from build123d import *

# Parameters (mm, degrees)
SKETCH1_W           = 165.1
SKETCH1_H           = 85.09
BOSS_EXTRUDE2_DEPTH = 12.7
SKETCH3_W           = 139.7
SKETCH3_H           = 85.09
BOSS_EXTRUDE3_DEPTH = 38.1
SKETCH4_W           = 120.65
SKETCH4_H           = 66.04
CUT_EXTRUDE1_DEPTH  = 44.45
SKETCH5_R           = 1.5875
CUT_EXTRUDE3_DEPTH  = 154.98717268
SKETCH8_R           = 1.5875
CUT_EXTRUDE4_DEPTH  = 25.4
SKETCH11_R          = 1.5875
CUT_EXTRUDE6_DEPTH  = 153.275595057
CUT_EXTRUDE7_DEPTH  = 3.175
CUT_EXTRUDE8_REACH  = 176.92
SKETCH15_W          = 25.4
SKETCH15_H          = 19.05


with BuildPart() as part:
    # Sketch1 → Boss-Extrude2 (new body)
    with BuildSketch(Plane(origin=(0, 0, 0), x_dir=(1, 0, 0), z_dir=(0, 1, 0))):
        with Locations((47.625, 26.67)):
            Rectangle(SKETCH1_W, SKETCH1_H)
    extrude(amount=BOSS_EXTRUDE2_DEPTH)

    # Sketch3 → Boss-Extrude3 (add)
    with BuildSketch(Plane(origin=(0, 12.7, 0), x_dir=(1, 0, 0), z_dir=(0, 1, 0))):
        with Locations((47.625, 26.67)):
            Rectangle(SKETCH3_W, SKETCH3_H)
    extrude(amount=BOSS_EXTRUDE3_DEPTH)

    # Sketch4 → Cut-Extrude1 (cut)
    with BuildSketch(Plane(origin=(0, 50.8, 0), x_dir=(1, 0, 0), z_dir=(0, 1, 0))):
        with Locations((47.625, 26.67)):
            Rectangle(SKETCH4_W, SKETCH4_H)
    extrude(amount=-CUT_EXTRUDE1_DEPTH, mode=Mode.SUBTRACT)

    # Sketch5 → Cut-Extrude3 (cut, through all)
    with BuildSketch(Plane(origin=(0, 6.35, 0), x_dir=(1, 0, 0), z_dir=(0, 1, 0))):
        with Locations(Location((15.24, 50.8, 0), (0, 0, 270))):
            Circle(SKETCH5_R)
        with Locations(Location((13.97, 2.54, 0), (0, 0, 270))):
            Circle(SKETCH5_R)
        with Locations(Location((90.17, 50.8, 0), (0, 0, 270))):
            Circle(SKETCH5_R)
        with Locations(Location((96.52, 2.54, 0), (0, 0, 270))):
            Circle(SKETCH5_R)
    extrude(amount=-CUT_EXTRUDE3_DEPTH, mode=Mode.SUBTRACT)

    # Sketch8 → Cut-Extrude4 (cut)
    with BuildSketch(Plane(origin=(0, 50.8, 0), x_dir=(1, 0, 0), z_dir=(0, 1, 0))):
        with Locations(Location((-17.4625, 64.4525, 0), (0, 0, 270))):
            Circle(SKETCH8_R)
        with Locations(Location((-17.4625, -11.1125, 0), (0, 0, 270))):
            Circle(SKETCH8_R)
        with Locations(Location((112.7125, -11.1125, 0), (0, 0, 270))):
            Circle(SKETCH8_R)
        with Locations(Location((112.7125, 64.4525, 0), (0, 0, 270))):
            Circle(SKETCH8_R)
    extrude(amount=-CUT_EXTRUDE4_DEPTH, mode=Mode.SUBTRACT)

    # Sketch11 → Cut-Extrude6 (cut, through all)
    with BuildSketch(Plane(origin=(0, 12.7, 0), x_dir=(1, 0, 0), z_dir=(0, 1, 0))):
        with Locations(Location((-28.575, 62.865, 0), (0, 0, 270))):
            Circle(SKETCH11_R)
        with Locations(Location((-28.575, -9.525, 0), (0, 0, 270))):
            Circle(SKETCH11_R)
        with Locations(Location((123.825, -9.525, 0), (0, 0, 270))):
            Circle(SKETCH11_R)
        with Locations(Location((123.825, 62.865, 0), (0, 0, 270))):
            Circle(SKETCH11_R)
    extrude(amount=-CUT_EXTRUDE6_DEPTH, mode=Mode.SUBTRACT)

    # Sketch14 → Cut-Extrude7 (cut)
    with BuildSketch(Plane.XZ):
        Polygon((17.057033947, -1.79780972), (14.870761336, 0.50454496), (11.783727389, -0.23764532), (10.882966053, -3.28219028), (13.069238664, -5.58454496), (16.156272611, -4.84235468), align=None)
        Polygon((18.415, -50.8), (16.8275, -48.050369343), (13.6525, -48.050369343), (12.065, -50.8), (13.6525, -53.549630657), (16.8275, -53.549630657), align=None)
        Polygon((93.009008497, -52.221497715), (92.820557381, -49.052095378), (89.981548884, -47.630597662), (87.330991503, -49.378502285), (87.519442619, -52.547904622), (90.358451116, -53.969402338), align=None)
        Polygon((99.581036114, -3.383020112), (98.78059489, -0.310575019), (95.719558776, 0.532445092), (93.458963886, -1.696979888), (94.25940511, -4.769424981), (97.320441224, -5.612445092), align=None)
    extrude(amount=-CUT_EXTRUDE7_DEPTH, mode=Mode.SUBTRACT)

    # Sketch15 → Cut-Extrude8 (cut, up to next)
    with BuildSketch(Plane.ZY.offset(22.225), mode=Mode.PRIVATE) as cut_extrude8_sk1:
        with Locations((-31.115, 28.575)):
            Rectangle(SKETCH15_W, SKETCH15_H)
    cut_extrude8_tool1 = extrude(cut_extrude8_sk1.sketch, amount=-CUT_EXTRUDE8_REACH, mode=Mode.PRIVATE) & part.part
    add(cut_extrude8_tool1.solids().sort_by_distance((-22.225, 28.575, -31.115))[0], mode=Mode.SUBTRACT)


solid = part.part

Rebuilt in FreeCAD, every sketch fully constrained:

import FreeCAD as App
import Part
import Sketcher

V = App.Vector
Q = App.Units.Quantity

doc = App.newDocument("Part")
body = doc.addObject("PartDesign::Body", "Body")

sketch1 = doc.addObject("Sketcher::SketchObject", "Sketch")
body.addObject(sketch1)
sketch1.AttachmentSupport = (doc.XZ_Plane, [""])
sketch1.MapMode = "FlatFace"
sketch1.addGeometry([
    Part.LineSegment(V(-35, -69, 0), V(-35, 16, 0)),
    Part.LineSegment(V(-35, 16, 0), V(130, 16, 0)),
    Part.LineSegment(V(130, 16, 0), V(130, -69, 0)),
    Part.LineSegment(V(130, -69, 0), V(-35, -69, 0)),
], False)
sketch1.addConstraint([
    Sketcher.Constraint("Coincident", 0, 2, 1, 1),
    Sketcher.Constraint("Coincident", 1, 2, 2, 1),
    Sketcher.Constraint("Coincident", 2, 2, 3, 1),
    Sketcher.Constraint("Coincident", 3, 2, 0, 1),
    Sketcher.Constraint("Vertical", 0),
    Sketcher.Constraint("Horizontal", 1),
    Sketcher.Constraint("Vertical", 2),
    Sketcher.Constraint("Horizontal", 3),
    Sketcher.Constraint("DistanceX", 1, 1, 1, 2, Q("6.5 in")),
    Sketcher.Constraint("DistanceY", 0, 1, 0, 2, Q("3.35 in")),
    Sketcher.Constraint("DistanceX", 0, 2, -1, 1, Q("1.375 in")),
    Sketcher.Constraint("DistanceY", -1, 1, 0, 2, Q("0.625 in")),
])
pad1 = doc.addObject("PartDesign::Pad", "Pad")
body.addObject(pad1)
pad1.Profile = sketch1
pad1.Length = Q("0.5 in")
pad1.Reversed = True

sketch2 = doc.addObject("Sketcher::SketchObject", "Sketch001")
body.addObject(sketch2)
sketch2.AttachmentSupport = (doc.XZ_Plane, [""])
sketch2.MapMode = "FlatFace"
sketch2.AttachmentOffset = App.Placement(V(0, 0, -0.5 * 25.4), App.Rotation())
sketch2.addGeometry([
    Part.LineSegment(V(-22, -69, 0), V(-22, 16, 0)),
    Part.LineSegment(V(-22, 16, 0), V(117, 16, 0)),
    Part.LineSegment(V(117, 16, 0), V(117, -69, 0)),
    Part.LineSegment(V(117, -69, 0), V(-22, -69, 0)),
], False)
sketch2.addConstraint([
    Sketcher.Constraint("Coincident", 0, 2, 1, 1),
    Sketcher.Constraint("Coincident", 1, 2, 2, 1),
    Sketcher.Constraint("Coincident", 2, 2, 3, 1),
    Sketcher.Constraint("Coincident", 3, 2, 0, 1),
    Sketcher.Constraint("Vertical", 0),
    Sketcher.Constraint("Horizontal", 1),
    Sketcher.Constraint("Vertical", 2),
    Sketcher.Constraint("Horizontal", 3),
    Sketcher.Constraint("DistanceX", 1, 1, 1, 2, Q("5.5 in")),
    Sketcher.Constraint("DistanceY", 0, 1, 0, 2, Q("3.35 in")),
    Sketcher.Constraint("DistanceX", 0, 2, -1, 1, Q("0.875 in")),
    Sketcher.Constraint("DistanceY", -1, 1, 0, 2, Q("0.625 in")),
])
pad2 = doc.addObject("PartDesign::Pad", "Pad001")
body.addObject(pad2)
pad2.Profile = sketch2
pad2.Length = Q("1.5 in")
pad2.Reversed = True

sketch3 = doc.addObject("Sketcher::SketchObject", "Sketch002")
body.addObject(sketch3)
sketch3.AttachmentSupport = (doc.XZ_Plane, [""])
sketch3.MapMode = "FlatFace"
sketch3.AttachmentOffset = App.Placement(V(0, 0, -2 * 25.4), App.Rotation())
sketch3.addGeometry([
    Part.LineSegment(V(-13, -60, 0), V(-13, 6, 0)),
    Part.LineSegment(V(-13, 6, 0), V(108, 6, 0)),
    Part.LineSegment(V(108, 6, 0), V(108, -60, 0)),
    Part.LineSegment(V(108, -60, 0), V(-13, -60, 0)),
], False)
sketch3.addConstraint([
    Sketcher.Constraint("Coincident", 0, 2, 1, 1),
    Sketcher.Constraint("Coincident", 1, 2, 2, 1),
    Sketcher.Constraint("Coincident", 2, 2, 3, 1),
    Sketcher.Constraint("Coincident", 3, 2, 0, 1),
    Sketcher.Constraint("Vertical", 0),
    Sketcher.Constraint("Horizontal", 1),
    Sketcher.Constraint("Vertical", 2),
    Sketcher.Constraint("Horizontal", 3),
    Sketcher.Constraint("DistanceY", 0, 1, 0, 2, Q("2.6 in")),
    Sketcher.Constraint("DistanceX", 1, 1, 1, 2, Q("4.75 in")),
    Sketcher.Constraint("DistanceX", 0, 2, -1, 1, Q("0.5 in")),
    Sketcher.Constraint("DistanceY", -1, 1, 0, 2, Q("0.25 in")),
])
pocket1 = doc.addObject("PartDesign::Pocket", "Pocket")
body.addObject(pocket1)
pocket1.Profile = sketch3
pocket1.Length = Q("1.75 in")
pocket1.Reversed = True

sketch4 = doc.addObject("Sketcher::SketchObject", "Sketch003")
body.addObject(sketch4)
sketch4.AttachmentSupport = (doc.XZ_Plane, [""])
sketch4.MapMode = "FlatFace"
sketch4.AttachmentOffset = App.Placement(V(0, 0, -0.25 * 25.4), App.Rotation())
sketch4.addGeometry([
    Part.Circle(V(15.2, -50.8, 0), V(0, 0, 1), 1.6),
    Part.Circle(V(14, -2.5, 0), V(0, 0, 1), 1.6),
    Part.Circle(V(90.2, -50.8, 0), V(0, 0, 1), 1.6),
    Part.Circle(V(96.5, -2.5, 0), V(0, 0, 1), 1.6),
], False)
sketch4.addConstraint([
    Sketcher.Constraint("Equal", 0, 1),
    Sketcher.Constraint("Equal", 1, 2),
    Sketcher.Constraint("Equal", 2, 3),
    Sketcher.Constraint("Horizontal", 0, 3, 2, 3),
    Sketcher.Constraint("Horizontal", 1, 3, 3, 3),
    Sketcher.Constraint("Diameter", 0, Q("0.125 in")),
    Sketcher.Constraint("DistanceY", 0, 3, -1, 1, Q("2 in")),
    Sketcher.Constraint("DistanceX", 1, 3, 2, 3, Q("3 in")),
    Sketcher.Constraint("DistanceX", -1, 1, 0, 3, Q("0.6 in")),
    Sketcher.Constraint("DistanceY", 1, 3, -1, 1, Q("0.1 in")),
    Sketcher.Constraint("DistanceX", -1, 1, 3, 3, Q("3.8 in")),
    Sketcher.Constraint("DistanceX", -1, 1, 1, 3, Q("0.55 in")),
])
pocket2 = doc.addObject("PartDesign::Pocket", "Pocket001")
body.addObject(pocket2)
pocket2.Profile = sketch4
pocket2.Type = "ThroughAll"
pocket2.Reversed = True

sketch5 = doc.addObject("Sketcher::SketchObject", "Sketch004")
body.addObject(sketch5)
sketch5.AttachmentSupport = (doc.XZ_Plane, [""])
sketch5.MapMode = "FlatFace"
sketch5.AttachmentOffset = App.Placement(V(0, 0, -2 * 25.4), App.Rotation())
sketch5.addGeometry([
    Part.Circle(V(-17.5, -64.5, 0), V(0, 0, 1), 1.6),
    Part.Circle(V(-17.5, 11.1, 0), V(0, 0, 1), 1.6),
    Part.Circle(V(112.7, 11.1, 0), V(0, 0, 1), 1.6),
    Part.Circle(V(112.7, -64.5, 0), V(0, 0, 1), 1.6),
], False)
sketch5.addConstraint([
    Sketcher.Constraint("Equal", 0, 1),
    Sketcher.Constraint("Equal", 1, 2),
    Sketcher.Constraint("Equal", 2, 3),
    Sketcher.Constraint("Horizontal", 1, 3, 2, 3),
    Sketcher.Constraint("Horizontal", 0, 3, 3, 3),
    Sketcher.Constraint("Vertical", 0, 3, 1, 3),
    Sketcher.Constraint("Vertical", 2, 3, 3, 3),
    Sketcher.Constraint("Diameter", 0, Q("0.125 in")),
    Sketcher.Constraint("DistanceX", 0, 3, -1, 1, Q("0.6875 in")),
    Sketcher.Constraint("DistanceY", -1, 1, 1, 3, Q("0.4375 in")),
    Sketcher.Constraint("DistanceX", -1, 1, 2, 3, Q("4.4375 in")),
    Sketcher.Constraint("DistanceY", 0, 3, 1, 3, Q("2.975 in")),
])
pocket3 = doc.addObject("PartDesign::Pocket", "Pocket002")
body.addObject(pocket3)
pocket3.Profile = sketch5
pocket3.Length = Q("1 in")
pocket3.Reversed = True

sketch6 = doc.addObject("Sketcher::SketchObject", "Sketch005")
body.addObject(sketch6)
sketch6.AttachmentSupport = (doc.XZ_Plane, [""])
sketch6.MapMode = "FlatFace"
sketch6.AttachmentOffset = App.Placement(V(0, 0, -0.5 * 25.4), App.Rotation())
sketch6.addGeometry([
    Part.Circle(V(-28.6, -62.9, 0), V(0, 0, 1), 1.6),
    Part.Circle(V(-28.6, 9.5, 0), V(0, 0, 1), 1.6),
    Part.Circle(V(123.8, 9.5, 0), V(0, 0, 1), 1.6),
    Part.Circle(V(123.8, -62.9, 0), V(0, 0, 1), 1.6),
], False)
sketch6.addConstraint([
    Sketcher.Constraint("Equal", 0, 1),
    Sketcher.Constraint("Equal", 1, 2),
    Sketcher.Constraint("Equal", 2, 3),
    Sketcher.Constraint("Horizontal", 1, 3, 2, 3),
    Sketcher.Constraint("Horizontal", 0, 3, 3, 3),
    Sketcher.Constraint("Vertical", 0, 3, 1, 3),
    Sketcher.Constraint("Vertical", 2, 3, 3, 3),
    Sketcher.Constraint("Diameter", 0, Q("0.125 in")),
    Sketcher.Constraint("DistanceX", 1, 3, 2, 3, Q("6 in")),
    Sketcher.Constraint("DistanceY", 0, 3, 1, 3, Q("2.85 in")),
    Sketcher.Constraint("DistanceX", 0, 3, -1, 1, Q("1.125 in")),
    Sketcher.Constraint("DistanceY", 0, 3, -1, 1, Q("2.475 in")),
])
pocket4 = doc.addObject("PartDesign::Pocket", "Pocket003")
body.addObject(pocket4)
pocket4.Profile = sketch6
pocket4.Type = "ThroughAll"
pocket4.Reversed = True

sketch7 = doc.addObject("Sketcher::SketchObject", "Sketch006")
body.addObject(sketch7)
sketch7.AttachmentSupport = (doc.XZ_Plane, [""])
sketch7.MapMode = "FlatFace"
sketch7.addGeometry([
    Part.LineSegment(V(17.1, -1.8, 0), V(14.9, 0.5, 0)),
    Part.LineSegment(V(14.9, 0.5, 0), V(11.8, -0.2, 0)),
    Part.LineSegment(V(11.8, -0.2, 0), V(10.9, -3.3, 0)),
    Part.LineSegment(V(10.9, -3.3, 0), V(13.1, -5.6, 0)),
    Part.LineSegment(V(13.1, -5.6, 0), V(16.2, -4.8, 0)),
    Part.LineSegment(V(16.2, -4.8, 0), V(17.1, -1.8, 0)),
    Part.LineSegment(V(18.4, -50.8, 0), V(16.8, -48.1, 0)),
    Part.LineSegment(V(16.8, -48.1, 0), V(13.7, -48.1, 0)),
    Part.LineSegment(V(13.7, -48.1, 0), V(12.1, -50.8, 0)),
    Part.LineSegment(V(12.1, -50.8, 0), V(13.7, -53.5, 0)),
    Part.LineSegment(V(13.7, -53.5, 0), V(16.8, -53.5, 0)),
    Part.LineSegment(V(16.8, -53.5, 0), V(18.4, -50.8, 0)),
    Part.LineSegment(V(93, -52.2, 0), V(92.8, -49.1, 0)),
    Part.LineSegment(V(92.8, -49.1, 0), V(90, -47.6, 0)),
    Part.LineSegment(V(90, -47.6, 0), V(87.3, -49.4, 0)),
    Part.LineSegment(V(87.3, -49.4, 0), V(87.5, -52.5, 0)),
    Part.LineSegment(V(87.5, -52.5, 0), V(90.4, -54, 0)),
    Part.LineSegment(V(90.4, -54, 0), V(93, -52.2, 0)),
    Part.LineSegment(V(99.6, -3.4, 0), V(98.8, -0.3, 0)),
    Part.LineSegment(V(98.8, -0.3, 0), V(95.7, 0.5, 0)),
    Part.LineSegment(V(95.7, 0.5, 0), V(93.5, -1.7, 0)),
    Part.LineSegment(V(93.5, -1.7, 0), V(94.3, -4.8, 0)),
    Part.LineSegment(V(94.3, -4.8, 0), V(97.3, -5.6, 0)),
    Part.LineSegment(V(97.3, -5.6, 0), V(99.6, -3.4, 0)),
], False)
sketch7.addConstraint([
    Sketcher.Constraint("Coincident", 0, 2, 1, 1),
    Sketcher.Constraint("Coincident", 1, 2, 2, 1),
    Sketcher.Constraint("Coincident", 2, 2, 3, 1),
    Sketcher.Constraint("Coincident", 3, 2, 4, 1),
    Sketcher.Constraint("Coincident", 4, 2, 5, 1),
    Sketcher.Constraint("Coincident", 5, 2, 0, 1),
    Sketcher.Constraint("Coincident", 6, 2, 7, 1),
    Sketcher.Constraint("Coincident", 7, 2, 8, 1),
    Sketcher.Constraint("Coincident", 8, 2, 9, 1),
    Sketcher.Constraint("Coincident", 9, 2, 10, 1),
    Sketcher.Constraint("Coincident", 10, 2, 11, 1),
    Sketcher.Constraint("Coincident", 11, 2, 6, 1),
    Sketcher.Constraint("Coincident", 12, 2, 13, 1),
    Sketcher.Constraint("Coincident", 13, 2, 14, 1),
    Sketcher.Constraint("Coincident", 14, 2, 15, 1),
    Sketcher.Constraint("Coincident", 15, 2, 16, 1),
    Sketcher.Constraint("Coincident", 16, 2, 17, 1),
    Sketcher.Constraint("Coincident", 17, 2, 12, 1),
    Sketcher.Constraint("Coincident", 18, 2, 19, 1),
    Sketcher.Constraint("Coincident", 19, 2, 20, 1),
    Sketcher.Constraint("Coincident", 20, 2, 21, 1),
    Sketcher.Constraint("Coincident", 21, 2, 22, 1),
    Sketcher.Constraint("Coincident", 22, 2, 23, 1),
    Sketcher.Constraint("Coincident", 23, 2, 18, 1),
    Sketcher.Constraint("Horizontal", 7),
    Sketcher.Constraint("Horizontal", 10),
    Sketcher.Constraint("Parallel", 0, 3),
    Sketcher.Constraint("Parallel", 1, 4),
    Sketcher.Constraint("Parallel", 2, 5),
    Sketcher.Constraint("Parallel", 6, 9),
    Sketcher.Constraint("Parallel", 8, 11),
    Sketcher.Constraint("Parallel", 12, 15),
    Sketcher.Constraint("Parallel", 13, 16),
    Sketcher.Constraint("Parallel", 14, 17),
    Sketcher.Constraint("Parallel", 18, 21),
    Sketcher.Constraint("Parallel", 19, 22),
    Sketcher.Constraint("Parallel", 20, 23),
    Sketcher.Constraint("Horizontal", 8, 2, 11, 2),
    Sketcher.Constraint("Vertical", 7, 2, 9, 2),
    Sketcher.Constraint("Vertical", 6, 2, 10, 2),
    Sketcher.Constraint("Equal", 0, 1),
    Sketcher.Constraint("Equal", 1, 2),
    Sketcher.Constraint("Equal", 2, 3),
    Sketcher.Constraint("Equal", 5, 6),
    Sketcher.Constraint("Equal", 11, 12),
    Sketcher.Constraint("Equal", 12, 13),
    Sketcher.Constraint("Equal", 13, 14),
    Sketcher.Constraint("Equal", 14, 15),
    Sketcher.Constraint("Equal", 17, 18),
    Sketcher.Constraint("Equal", 18, 19),
    Sketcher.Constraint("Equal", 19, 20),
    Sketcher.Constraint("Equal", 20, 21),
    Sketcher.Constraint("DistanceY", 8, 2, -1, 1, Q("2 in")),
    Sketcher.Constraint("Angle", 6, Q("120 deg")),
    Sketcher.Constraint("DistanceX", 7, 2, 7, 1, Q("0.125 in")),
    Sketcher.Constraint("DistanceX", 8, 2, 11, 2, Q("0.25 in")),
    Sketcher.Constraint("DistanceX", -1, 1, 8, 2, Q("0.475 in")),
    Sketcher.Constraint("DistanceX", 2, 2, 0, 2, Q("0.1569998 in")),
    Sketcher.Constraint("DistanceY", 3, 2, 1, 2, 5.3469),
    Sketcher.Constraint("DistanceY", 16, 2, 14, 2, 4.5909),
    Sketcher.Constraint("DistanceX", 12, 2, 19, 2, 2.899001),
    Sketcher.Constraint("DistanceX", -1, 1, 0, 2, 14.870761),
    Sketcher.Constraint("DistanceY", 2, 2, -1, 1, 3.28219),
    Sketcher.Constraint("DistanceX", -1, 1, 3, 2, 13.069239),
    Sketcher.Constraint("DistanceX", -1, 1, 13, 2, 89.981549),
    Sketcher.Constraint("DistanceX", -1, 1, 14, 2, 87.330992),
    Sketcher.Constraint("DistanceX", -1, 1, 16, 2, 90.358451),
    Sketcher.Constraint("DistanceY", 20, 2, -1, 1, 1.69698),
    Sketcher.Constraint("DistanceX", -1, 1, 22, 2, 97.320441),
    Sketcher.Constraint("DistanceY", 23, 2, -1, 1, 3.38302),
    Sketcher.Constraint("DistanceY", 6, 2, 13, 2, 0.419772),
    Sketcher.Constraint("DistanceY", 12, 2, 18, 2, 48.74152),
])
pocket5 = doc.addObject("PartDesign::Pocket", "Pocket004")
body.addObject(pocket5)
pocket5.Profile = sketch7
pocket5.Length = Q("0.125 in")

sketch8 = doc.addObject("Sketcher::SketchObject", "Sketch007")
body.addObject(sketch8)
sketch8.AttachmentSupport = (doc.YZ_Plane, [""])
sketch8.MapMode = "FlatFace"
sketch8.AttachmentOffset = App.Placement(V(0, 0, -0.875 * 25.4), App.Rotation())
sketch8.addGeometry([
    Part.LineSegment(V(38, -44, 0), V(19, -44, 0)),
    Part.LineSegment(V(19, -44, 0), V(19, -18, 0)),
    Part.LineSegment(V(19, -18, 0), V(38, -18, 0)),
    Part.LineSegment(V(38, -18, 0), V(38, -44, 0)),
], False)
sketch8.addConstraint([
    Sketcher.Constraint("Coincident", 0, 2, 1, 1),
    Sketcher.Constraint("Coincident", 1, 2, 2, 1),
    Sketcher.Constraint("Coincident", 2, 2, 3, 1),
    Sketcher.Constraint("Coincident", 3, 2, 0, 1),
    Sketcher.Constraint("Horizontal", 0),
    Sketcher.Constraint("Vertical", 1),
    Sketcher.Constraint("Horizontal", 2),
    Sketcher.Constraint("Vertical", 3),
    Sketcher.Constraint("DistanceY", 1, 1, 1, 2, Q("1 in")),
    Sketcher.Constraint("DistanceX", 0, 2, 0, 1, Q("0.75 in")),
    Sketcher.Constraint("DistanceX", -1, 1, 2, 2, Q("1.5 in")),
    Sketcher.Constraint("DistanceY", 0, 2, -1, 1, Q("1.725 in")),
])
pocket6 = doc.addObject("PartDesign::Pocket", "Pocket005")
body.addObject(pocket6)
pocket6.Profile = sketch8
pocket6.Type = "UpToFirst"
pocket6.Reversed = True

doc.recompute()
